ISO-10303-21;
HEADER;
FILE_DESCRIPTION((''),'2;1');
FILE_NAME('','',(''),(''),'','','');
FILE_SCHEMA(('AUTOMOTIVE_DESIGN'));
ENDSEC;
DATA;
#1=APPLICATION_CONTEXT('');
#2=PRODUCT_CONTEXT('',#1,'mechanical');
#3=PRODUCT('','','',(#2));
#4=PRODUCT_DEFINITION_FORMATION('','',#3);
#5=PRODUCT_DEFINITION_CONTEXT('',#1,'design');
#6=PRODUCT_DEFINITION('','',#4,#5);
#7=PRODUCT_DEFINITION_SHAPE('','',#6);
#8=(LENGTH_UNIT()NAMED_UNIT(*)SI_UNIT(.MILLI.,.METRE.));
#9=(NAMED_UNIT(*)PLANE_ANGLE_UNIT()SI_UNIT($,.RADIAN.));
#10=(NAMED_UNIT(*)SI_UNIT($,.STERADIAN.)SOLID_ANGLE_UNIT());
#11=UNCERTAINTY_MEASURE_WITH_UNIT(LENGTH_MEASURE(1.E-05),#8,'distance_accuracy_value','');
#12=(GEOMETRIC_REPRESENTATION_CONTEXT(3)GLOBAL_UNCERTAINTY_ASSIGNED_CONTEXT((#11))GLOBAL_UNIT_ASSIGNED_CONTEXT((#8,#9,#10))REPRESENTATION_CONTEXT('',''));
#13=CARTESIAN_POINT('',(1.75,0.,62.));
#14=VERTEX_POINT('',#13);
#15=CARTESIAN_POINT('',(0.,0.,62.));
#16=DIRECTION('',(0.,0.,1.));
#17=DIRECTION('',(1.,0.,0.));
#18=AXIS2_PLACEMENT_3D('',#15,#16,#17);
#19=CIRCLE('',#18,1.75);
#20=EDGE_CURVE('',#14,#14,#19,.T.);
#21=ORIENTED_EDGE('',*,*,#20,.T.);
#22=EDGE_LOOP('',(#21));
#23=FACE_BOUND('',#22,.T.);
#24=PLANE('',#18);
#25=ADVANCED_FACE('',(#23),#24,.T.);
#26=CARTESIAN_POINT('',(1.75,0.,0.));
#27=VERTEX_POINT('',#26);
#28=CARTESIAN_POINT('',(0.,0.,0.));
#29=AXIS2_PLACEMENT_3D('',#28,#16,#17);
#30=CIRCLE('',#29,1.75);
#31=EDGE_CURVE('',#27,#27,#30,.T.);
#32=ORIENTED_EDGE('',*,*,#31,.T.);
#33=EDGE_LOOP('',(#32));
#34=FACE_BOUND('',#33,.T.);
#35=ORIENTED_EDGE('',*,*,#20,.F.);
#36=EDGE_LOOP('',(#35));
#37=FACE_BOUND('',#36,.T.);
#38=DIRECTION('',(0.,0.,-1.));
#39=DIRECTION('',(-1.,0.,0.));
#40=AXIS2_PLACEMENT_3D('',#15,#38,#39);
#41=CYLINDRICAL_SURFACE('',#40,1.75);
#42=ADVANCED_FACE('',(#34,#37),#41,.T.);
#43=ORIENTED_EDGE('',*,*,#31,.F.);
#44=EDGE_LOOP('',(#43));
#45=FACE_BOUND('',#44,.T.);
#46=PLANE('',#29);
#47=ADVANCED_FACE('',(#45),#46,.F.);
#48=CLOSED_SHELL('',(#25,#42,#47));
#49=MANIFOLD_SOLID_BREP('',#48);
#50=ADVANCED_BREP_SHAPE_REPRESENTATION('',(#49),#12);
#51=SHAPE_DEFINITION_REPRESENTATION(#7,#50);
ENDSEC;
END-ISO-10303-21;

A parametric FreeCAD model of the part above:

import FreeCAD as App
import Part
import Sketcher

V = App.Vector

doc = App.newDocument("Part")
params = doc.addObject("Spreadsheet::Sheet", "Params")
for row, (alias, value) in enumerate([
    ("sketch1_diameter", "3.5 mm"),
    ("pad1_length", "62 mm"),
], start=1):
    params.set(f"A{row}", alias)
    params.set(f"B{row}", "=" + value)
    params.setAlias(f"B{row}", alias)

body = doc.addObject("PartDesign::Body", "Body")

# Sketch on XY plane
sketch1 = doc.addObject("Sketcher::SketchObject", "Sketch")
body.addObject(sketch1)
sketch1.AttachmentSupport = (doc.XY_Plane, [""])
sketch1.MapMode = "FlatFace"
sketch1.addGeometry(Part.Circle(V(0, 0, 0), V(0, 0, 1), 1.75), False)
sketch1.addConstraint(Sketcher.Constraint("Coincident", 0, 3, -1, 1))
sketch1.addConstraint(Sketcher.Constraint("Diameter", 0, 3.5))
sketch1.setExpression("Constraints[1]", "Params.sketch1_diameter")
pad1 = doc.addObject("PartDesign::Pad", "Pad")
body.addObject(pad1)
pad1.Profile = sketch1
pad1.setExpression("Length", "Params.pad1_length")

doc.recompute()
